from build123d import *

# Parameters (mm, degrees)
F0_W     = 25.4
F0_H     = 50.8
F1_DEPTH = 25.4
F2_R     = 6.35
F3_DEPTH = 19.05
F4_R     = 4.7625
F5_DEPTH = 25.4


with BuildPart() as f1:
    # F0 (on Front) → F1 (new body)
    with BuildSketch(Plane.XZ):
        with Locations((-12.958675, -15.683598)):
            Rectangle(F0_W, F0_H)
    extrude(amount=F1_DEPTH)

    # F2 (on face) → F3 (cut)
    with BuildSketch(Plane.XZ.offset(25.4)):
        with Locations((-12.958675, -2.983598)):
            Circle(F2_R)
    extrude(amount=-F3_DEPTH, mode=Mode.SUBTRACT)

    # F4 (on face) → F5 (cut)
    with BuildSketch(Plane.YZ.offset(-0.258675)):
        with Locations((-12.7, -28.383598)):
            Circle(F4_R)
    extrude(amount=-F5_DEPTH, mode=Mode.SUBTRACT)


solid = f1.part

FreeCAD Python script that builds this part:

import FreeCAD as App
import Part
import Sketcher

V = App.Vector
Q = App.Units.Quantity


def add_polygon(sketch, points):
    """Adds a closed chain of lines whose ends are joined by coincident constraints."""
    first, n = sketch.GeometryCount, len(points)
    for a, b in zip(points, points[1:] + points[:1]):
        sketch.addGeometry(Part.LineSegment(App.Vector(*a, 0), App.Vector(*b, 0)), False)
    for i in range(n):
        sketch.addConstraint(Sketcher.Constraint("Coincident", first + i, 2, first + (i + 1) % n, 1))

doc = App.newDocument("Part")
body = doc.addObject("PartDesign::Body", "Body")

sketch1 = doc.addObject("Sketcher::SketchObject", "Sketch")
body.addObject(sketch1)
sketch1.AttachmentSupport = (doc.XZ_Plane, [""])
sketch1.MapMode = "FlatFace"
add_polygon(sketch1, [(-26, 10), (-26, -41), (0, -41), (0, 10)])
sketch1.addConstraint(Sketcher.Constraint("Vertical", 0))
sketch1.addConstraint(Sketcher.Constraint("Horizontal", 1))
sketch1.addConstraint(Sketcher.Constraint("Vertical", 2))
sketch1.addConstraint(Sketcher.Constraint("Horizontal", 3))
sketch1.addConstraint(Sketcher.Constraint("DistanceX", 1, 1, 1, 2, Q("1 in")))
sketch1.addConstraint(Sketcher.Constraint("DistanceY", 0, 2, 0, 1, Q("2 in")))
sketch1.addConstraint(Sketcher.Constraint("DistanceY", 0, 2, -1, 1, Q("41.083598 mm")))
sketch1.addConstraint(Sketcher.Constraint("DistanceX", 0, 2, -1, 1, Q("25.658675 mm")))
pad1 = doc.addObject("PartDesign::Pad", "Pad")
body.addObject(pad1)
pad1.Profile = sketch1
pad1.Length = Q("1 in")

sketch2 = doc.addObject("Sketcher::SketchObject", "Sketch001")
body.addObject(sketch2)
sketch2.AttachmentSupport = (doc.XZ_Plane, [""])
sketch2.MapMode = "FlatFace"
sketch2.AttachmentOffset = App.Placement(V(0, 0, 1 * 25.4), App.Rotation())
sketch2.addGeometry(Part.Circle(V(-13, -3, 0), V(0, 0, 1), 6), False)
sketch2.addConstraint(Sketcher.Constraint("Diameter", 0, Q("0.5 in")))
sketch2.addConstraint(Sketcher.Constraint("DistanceY", 0, 3, -1, 1, Q("2.983598 mm")))
sketch2.addConstraint(Sketcher.Constraint("DistanceX", 0, 3, -1, 1, Q("12.958675 mm")))
pocket1 = doc.addObject("PartDesign::Pocket", "Pocket")
body.addObject(pocket1)
pocket1.Profile = sketch2
pocket1.Length = Q("0.75 in")

sketch3 = doc.addObject("Sketcher::SketchObject", "Sketch002")
body.addObject(sketch3)
sketch3.AttachmentSupport = (doc.YZ_Plane, [""])
sketch3.MapMode = "FlatFace"
sketch3.AttachmentOffset = App.Placement(V(0, 0, -0.258675), App.Rotation())
sketch3.addGeometry(Part.Circle(V(-12.7, -28.4, 0), V(0, 0, 1), 4.8), False)
sketch3.addConstraint(Sketcher.Constraint("Diameter", 0, Q("0.375 in")))
sketch3.addConstraint(Sketcher.Constraint("DistanceX", 0, 3, -1, 1, Q("0.5 in")))
sketch3.addConstraint(Sketcher.Constraint("DistanceY", 0, 3, -1, 1, Q("28.383598 mm")))
pocket2 = doc.addObject("PartDesign::Pocket", "Pocket001")
body.addObject(pocket2)
pocket2.Profile = sketch3
pocket2.Length = Q("1 in")

doc.recompute()
